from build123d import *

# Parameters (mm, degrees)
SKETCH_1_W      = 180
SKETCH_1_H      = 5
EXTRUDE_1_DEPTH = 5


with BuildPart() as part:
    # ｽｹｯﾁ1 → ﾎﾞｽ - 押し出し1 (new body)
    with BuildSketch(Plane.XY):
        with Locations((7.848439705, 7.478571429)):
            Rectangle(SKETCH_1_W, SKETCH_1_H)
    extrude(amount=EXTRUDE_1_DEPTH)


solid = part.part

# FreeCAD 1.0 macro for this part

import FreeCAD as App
import Part
import Sketcher
from FreeCAD import Vector


def add_polygon(sketch, points):
    """Adds a closed chain of lines whose ends are joined by coincident constraints."""
    first, n = sketch.GeometryCount, len(points)
    for a, b in zip(points, points[1:] + points[:1]):
        sketch.addGeometry(Part.LineSegment(App.Vector(*a, 0), App.Vector(*b, 0)), False)
    for i in range(n):
        sketch.addConstraint(Sketcher.Constraint("Coincident", first + i, 2, first + (i + 1) % n, 1))

doc = App.newDocument("Part")
body = doc.addObject("PartDesign::Body", "Body")

# Sketch on XY plane
sketch1 = body.newObject("Sketcher::SketchObject", "Sketch")
sketch1.AttachmentSupport = (doc.getObject("XY_Plane"), [""])
sketch1.MapMode = "FlatFace"
add_polygon(sketch1, [(-82, 10), (-82, 5), (98, 5), (98, 10)])  # lines 0-3
sketch1.addConstraint(Sketcher.Constraint("Vertical", 0))
sketch1.addConstraint(Sketcher.Constraint("Horizontal", 1))
sketch1.addConstraint(Sketcher.Constraint("Vertical", 2))
sketch1.addConstraint(Sketcher.Constraint("Horizontal", 3))
sketch1.addConstraint(Sketcher.Constraint("DistanceX", 1, 1, 1, 2, 180.0))
sketch1.addConstraint(Sketcher.Constraint("DistanceY", 0, 2, 0, 1, 5.0))
sketch1.addConstraint(Sketcher.Constraint("DistanceX", 0, 2, -1, 1, 82.15156))
sketch1.addConstraint(Sketcher.Constraint("DistanceY", -1, 1, 0, 2, 4.978571))
pad1 = body.newObject("PartDesign::Pad", "Pad")
pad1.Profile = sketch1
pad1.Length = 5

doc.recompute()
